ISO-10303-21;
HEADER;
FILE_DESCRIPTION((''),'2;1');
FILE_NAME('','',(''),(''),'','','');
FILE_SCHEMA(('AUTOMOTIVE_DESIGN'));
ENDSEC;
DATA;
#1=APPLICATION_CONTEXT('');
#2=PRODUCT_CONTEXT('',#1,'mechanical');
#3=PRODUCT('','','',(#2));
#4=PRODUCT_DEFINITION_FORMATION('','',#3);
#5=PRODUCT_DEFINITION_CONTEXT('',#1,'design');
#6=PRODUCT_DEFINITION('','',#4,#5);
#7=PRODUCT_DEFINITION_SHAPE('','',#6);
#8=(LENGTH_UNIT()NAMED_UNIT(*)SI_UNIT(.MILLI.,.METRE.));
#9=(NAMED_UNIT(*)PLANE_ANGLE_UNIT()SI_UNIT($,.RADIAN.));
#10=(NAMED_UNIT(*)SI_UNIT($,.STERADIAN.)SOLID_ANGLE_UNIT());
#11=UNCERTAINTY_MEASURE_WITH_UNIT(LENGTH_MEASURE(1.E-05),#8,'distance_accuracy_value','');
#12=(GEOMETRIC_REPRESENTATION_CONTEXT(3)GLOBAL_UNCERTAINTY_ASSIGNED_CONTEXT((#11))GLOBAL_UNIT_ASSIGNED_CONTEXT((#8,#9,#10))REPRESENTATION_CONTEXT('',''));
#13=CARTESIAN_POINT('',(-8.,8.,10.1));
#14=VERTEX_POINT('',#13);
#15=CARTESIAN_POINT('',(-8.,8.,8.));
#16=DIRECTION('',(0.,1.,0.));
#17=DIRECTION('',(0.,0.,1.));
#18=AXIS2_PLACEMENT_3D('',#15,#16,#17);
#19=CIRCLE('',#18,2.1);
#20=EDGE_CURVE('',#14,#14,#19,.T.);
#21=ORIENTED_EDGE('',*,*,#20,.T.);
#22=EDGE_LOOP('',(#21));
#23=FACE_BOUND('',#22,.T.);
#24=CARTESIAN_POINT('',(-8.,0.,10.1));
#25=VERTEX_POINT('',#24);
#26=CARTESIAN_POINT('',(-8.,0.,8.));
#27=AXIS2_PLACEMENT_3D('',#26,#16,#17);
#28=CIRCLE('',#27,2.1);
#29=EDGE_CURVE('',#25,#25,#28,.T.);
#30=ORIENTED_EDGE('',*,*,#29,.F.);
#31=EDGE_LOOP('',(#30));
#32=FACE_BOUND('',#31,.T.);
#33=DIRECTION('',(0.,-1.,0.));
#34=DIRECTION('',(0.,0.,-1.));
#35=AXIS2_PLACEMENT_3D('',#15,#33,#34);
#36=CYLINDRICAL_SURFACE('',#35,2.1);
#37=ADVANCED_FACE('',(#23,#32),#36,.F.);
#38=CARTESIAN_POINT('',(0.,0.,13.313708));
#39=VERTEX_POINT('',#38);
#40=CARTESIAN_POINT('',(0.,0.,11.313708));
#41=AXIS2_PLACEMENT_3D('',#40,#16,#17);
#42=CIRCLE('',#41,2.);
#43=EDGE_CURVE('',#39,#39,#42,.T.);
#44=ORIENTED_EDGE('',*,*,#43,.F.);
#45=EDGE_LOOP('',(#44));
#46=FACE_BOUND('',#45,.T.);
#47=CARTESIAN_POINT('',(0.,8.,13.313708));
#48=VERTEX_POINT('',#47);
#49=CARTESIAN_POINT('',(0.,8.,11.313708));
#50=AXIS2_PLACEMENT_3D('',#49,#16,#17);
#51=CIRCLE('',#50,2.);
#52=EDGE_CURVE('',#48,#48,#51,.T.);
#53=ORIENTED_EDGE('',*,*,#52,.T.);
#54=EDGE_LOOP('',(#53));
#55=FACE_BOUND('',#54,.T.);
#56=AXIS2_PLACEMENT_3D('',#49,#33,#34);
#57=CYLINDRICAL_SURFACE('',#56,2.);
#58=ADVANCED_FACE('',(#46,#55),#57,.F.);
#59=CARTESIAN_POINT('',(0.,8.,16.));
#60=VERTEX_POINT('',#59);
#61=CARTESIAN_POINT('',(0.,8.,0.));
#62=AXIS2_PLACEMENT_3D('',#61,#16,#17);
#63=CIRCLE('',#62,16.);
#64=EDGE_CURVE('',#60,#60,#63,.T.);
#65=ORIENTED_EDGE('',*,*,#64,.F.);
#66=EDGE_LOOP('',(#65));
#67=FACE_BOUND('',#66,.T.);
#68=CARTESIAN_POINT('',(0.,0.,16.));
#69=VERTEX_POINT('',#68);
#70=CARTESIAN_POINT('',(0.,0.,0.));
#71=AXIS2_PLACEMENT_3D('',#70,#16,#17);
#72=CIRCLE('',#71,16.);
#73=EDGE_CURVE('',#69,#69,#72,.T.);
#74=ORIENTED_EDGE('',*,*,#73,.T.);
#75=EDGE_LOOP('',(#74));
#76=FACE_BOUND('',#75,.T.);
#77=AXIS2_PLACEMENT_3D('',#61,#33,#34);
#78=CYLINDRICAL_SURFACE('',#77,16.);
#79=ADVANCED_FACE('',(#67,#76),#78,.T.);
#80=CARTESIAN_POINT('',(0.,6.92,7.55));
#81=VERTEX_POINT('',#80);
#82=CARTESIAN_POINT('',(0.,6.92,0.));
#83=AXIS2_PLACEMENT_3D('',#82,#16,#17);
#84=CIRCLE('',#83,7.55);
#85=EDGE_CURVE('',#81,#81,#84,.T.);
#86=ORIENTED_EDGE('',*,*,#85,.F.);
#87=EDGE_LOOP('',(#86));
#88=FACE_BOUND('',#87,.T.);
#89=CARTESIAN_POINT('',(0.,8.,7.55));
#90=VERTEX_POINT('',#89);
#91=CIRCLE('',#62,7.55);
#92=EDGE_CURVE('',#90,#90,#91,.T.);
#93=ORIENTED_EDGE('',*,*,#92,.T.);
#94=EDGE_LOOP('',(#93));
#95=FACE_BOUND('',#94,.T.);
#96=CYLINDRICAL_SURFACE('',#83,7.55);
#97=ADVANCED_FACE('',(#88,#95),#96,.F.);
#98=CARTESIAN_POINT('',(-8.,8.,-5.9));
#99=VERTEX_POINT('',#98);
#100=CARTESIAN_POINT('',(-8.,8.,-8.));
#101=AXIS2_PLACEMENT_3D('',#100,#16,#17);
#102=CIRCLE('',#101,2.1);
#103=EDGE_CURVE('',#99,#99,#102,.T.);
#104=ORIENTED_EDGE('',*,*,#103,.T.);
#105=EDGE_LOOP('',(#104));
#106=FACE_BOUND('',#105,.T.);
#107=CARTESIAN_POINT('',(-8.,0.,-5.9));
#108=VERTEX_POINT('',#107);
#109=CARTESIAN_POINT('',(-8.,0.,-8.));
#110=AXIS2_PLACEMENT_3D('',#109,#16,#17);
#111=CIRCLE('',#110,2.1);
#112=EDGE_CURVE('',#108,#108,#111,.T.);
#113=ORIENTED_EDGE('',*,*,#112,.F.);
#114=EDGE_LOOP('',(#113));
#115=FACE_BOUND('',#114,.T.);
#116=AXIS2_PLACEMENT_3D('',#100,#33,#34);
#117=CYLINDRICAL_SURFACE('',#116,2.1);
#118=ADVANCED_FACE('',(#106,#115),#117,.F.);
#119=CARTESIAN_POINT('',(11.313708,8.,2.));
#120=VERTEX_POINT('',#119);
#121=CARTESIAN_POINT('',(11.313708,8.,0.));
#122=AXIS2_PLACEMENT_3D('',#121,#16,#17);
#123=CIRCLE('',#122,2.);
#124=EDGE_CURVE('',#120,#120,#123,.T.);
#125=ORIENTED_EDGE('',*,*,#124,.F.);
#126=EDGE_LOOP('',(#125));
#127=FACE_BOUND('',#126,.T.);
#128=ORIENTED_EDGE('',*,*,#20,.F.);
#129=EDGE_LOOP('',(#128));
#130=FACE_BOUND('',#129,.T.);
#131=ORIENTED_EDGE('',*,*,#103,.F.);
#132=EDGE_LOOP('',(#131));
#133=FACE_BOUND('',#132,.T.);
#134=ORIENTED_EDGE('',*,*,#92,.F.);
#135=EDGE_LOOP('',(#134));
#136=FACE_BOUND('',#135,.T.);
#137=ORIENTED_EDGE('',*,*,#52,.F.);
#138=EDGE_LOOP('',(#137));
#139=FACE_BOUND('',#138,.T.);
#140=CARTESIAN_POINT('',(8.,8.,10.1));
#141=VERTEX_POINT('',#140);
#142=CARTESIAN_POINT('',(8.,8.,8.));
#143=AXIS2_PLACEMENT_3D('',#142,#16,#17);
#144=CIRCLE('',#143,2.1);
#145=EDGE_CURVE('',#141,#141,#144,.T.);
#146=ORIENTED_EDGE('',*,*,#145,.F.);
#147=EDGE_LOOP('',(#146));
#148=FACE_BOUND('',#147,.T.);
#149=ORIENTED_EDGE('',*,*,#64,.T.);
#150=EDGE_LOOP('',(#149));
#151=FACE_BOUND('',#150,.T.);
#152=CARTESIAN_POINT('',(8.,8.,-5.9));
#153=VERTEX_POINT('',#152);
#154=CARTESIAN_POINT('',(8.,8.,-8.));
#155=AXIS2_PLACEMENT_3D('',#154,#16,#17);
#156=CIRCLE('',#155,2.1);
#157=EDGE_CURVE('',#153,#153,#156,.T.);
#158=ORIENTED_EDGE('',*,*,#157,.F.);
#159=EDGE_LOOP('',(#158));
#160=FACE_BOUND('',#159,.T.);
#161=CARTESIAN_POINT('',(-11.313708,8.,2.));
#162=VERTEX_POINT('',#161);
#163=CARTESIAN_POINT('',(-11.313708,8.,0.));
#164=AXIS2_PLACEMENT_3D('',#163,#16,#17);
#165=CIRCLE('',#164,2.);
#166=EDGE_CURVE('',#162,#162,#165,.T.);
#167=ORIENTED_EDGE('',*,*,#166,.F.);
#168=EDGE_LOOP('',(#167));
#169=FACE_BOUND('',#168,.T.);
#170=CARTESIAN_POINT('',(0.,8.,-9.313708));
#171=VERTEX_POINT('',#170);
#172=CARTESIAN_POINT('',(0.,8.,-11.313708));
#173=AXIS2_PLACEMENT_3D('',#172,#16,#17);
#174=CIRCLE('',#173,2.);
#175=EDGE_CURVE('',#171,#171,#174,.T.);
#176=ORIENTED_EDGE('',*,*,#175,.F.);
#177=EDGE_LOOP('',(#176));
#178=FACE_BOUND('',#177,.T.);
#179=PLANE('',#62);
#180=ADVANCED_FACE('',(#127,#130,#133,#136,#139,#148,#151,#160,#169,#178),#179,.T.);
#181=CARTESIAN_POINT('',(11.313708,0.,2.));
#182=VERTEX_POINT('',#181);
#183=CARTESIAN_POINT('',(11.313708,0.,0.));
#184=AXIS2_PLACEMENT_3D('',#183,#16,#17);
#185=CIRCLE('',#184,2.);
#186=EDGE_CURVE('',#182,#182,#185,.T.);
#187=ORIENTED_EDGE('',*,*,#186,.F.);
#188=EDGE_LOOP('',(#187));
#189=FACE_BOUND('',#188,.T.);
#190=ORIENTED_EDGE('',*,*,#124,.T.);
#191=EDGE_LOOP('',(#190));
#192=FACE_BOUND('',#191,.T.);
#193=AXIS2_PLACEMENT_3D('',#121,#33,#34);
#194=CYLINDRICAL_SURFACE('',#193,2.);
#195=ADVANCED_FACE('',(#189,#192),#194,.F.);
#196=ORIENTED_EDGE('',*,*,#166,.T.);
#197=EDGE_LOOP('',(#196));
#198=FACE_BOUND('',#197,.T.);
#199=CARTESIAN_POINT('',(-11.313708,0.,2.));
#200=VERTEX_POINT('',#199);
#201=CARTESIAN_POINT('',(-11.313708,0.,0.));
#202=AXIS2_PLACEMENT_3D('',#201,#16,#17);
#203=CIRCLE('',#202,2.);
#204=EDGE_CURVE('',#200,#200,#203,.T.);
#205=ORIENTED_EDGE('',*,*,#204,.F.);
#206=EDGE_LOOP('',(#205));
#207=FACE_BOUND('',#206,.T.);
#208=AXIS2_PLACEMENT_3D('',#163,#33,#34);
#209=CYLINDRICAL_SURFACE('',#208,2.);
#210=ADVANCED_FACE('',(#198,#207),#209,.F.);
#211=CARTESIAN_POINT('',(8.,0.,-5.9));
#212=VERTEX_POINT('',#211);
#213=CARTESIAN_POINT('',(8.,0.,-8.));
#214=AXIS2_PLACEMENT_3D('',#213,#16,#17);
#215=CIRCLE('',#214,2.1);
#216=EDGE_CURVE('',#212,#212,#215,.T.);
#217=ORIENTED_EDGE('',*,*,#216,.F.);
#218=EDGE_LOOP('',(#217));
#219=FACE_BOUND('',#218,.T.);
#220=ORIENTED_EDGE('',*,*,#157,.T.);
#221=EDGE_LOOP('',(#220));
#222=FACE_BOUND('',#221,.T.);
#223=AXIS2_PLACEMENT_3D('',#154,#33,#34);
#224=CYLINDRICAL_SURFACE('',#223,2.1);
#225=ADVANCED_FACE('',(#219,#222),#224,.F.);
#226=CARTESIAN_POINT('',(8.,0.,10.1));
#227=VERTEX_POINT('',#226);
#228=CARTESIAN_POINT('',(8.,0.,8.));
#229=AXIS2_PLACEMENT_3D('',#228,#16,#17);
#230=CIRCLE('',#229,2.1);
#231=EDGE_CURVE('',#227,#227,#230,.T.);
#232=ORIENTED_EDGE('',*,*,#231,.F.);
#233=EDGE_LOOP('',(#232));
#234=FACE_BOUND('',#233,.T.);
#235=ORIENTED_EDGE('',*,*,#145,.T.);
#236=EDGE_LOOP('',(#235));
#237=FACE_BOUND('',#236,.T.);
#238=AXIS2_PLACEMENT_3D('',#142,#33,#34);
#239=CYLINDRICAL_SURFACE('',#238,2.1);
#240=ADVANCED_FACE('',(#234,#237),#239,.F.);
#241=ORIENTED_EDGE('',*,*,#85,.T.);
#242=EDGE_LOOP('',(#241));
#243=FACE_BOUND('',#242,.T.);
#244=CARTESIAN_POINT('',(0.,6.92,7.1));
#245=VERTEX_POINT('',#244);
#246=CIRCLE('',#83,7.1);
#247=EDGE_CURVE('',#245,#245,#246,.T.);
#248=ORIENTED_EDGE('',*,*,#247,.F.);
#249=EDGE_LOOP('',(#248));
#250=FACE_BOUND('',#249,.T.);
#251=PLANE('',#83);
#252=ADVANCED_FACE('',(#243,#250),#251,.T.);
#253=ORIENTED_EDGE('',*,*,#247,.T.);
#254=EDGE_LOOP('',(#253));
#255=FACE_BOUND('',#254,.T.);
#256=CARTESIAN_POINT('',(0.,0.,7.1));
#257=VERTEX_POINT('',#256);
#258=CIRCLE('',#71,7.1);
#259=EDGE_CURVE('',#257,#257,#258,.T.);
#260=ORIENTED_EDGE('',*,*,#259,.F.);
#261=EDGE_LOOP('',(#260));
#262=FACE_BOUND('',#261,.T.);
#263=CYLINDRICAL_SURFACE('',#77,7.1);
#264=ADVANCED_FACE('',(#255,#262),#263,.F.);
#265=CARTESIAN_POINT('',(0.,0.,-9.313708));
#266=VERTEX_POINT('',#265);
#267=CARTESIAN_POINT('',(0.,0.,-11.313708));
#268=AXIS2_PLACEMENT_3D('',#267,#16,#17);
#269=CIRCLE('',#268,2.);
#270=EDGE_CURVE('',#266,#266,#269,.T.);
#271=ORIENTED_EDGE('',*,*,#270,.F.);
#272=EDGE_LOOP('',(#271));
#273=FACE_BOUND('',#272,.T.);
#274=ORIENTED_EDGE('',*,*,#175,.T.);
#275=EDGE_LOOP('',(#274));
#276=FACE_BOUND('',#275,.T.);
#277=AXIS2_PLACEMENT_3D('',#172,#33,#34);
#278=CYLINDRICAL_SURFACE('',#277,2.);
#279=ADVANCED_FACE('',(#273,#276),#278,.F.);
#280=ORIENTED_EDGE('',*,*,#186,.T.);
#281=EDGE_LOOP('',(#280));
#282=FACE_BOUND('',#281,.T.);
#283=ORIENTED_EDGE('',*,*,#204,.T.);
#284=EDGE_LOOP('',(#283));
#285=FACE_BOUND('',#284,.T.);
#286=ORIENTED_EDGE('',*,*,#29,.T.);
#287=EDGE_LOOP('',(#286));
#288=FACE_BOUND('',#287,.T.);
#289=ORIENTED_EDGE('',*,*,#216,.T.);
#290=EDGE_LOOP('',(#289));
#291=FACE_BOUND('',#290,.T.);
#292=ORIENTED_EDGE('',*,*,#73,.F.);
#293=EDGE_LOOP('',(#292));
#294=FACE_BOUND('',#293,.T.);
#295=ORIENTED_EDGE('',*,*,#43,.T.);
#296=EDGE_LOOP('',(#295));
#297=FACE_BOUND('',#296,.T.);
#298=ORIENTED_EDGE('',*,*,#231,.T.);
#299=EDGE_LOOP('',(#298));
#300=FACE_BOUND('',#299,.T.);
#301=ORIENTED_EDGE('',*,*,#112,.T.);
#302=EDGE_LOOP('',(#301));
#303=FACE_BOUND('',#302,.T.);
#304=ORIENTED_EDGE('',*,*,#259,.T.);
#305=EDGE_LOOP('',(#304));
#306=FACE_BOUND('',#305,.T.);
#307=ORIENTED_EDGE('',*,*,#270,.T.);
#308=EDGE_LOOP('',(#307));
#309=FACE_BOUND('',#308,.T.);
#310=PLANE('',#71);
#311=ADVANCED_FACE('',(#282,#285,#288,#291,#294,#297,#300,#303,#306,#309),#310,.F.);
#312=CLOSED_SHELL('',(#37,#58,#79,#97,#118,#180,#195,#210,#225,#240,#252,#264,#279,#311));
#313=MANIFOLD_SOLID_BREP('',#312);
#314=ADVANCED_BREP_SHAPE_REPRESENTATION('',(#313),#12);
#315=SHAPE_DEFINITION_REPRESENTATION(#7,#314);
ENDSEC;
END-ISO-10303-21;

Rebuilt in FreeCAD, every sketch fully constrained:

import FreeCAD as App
import Part
import Sketcher
from FreeCAD import Vector

doc = App.newDocument("Part")
body = doc.addObject("PartDesign::Body", "Body")

sketch1 = doc.addObject("Sketcher::SketchObject", "Sketch")
body.addObject(sketch1)
sketch1.AttachmentSupport = (doc.XZ_Plane, [""])
sketch1.MapMode = "FlatFace"
sketch1.addGeometry(Part.Circle(Vector(0, 0, 0), Vector(0, 0, 1), 16), False)
sketch1.addGeometry(Part.Circle(Vector(-8, 8, 0), Vector(0, 0, 1), 2.1), False)
sketch1.addGeometry(Part.Circle(Vector(0, 11.3, 0), Vector(0, 0, 1), 2), False)
sketch1.addGeometry(Part.Circle(Vector(8, 8, 0), Vector(0, 0, 1), 2.1), False)
sketch1.addGeometry(Part.Circle(Vector(-11.3, 0, 0), Vector(0, 0, 1), 2), False)
sketch1.addGeometry(Part.Circle(Vector(-8, -8, 0), Vector(0, 0, 1), 2.1), False)
sketch1.addGeometry(Part.Circle(Vector(0, 0, 0), Vector(0, 0, 1), 7.1), False)
sketch1.addGeometry(Part.Circle(Vector(11.3, 0, 0), Vector(0, 0, 1), 2), False)
sketch1.addGeometry(Part.Circle(Vector(0, -11.3, 0), Vector(0, 0, 1), 2), False)
sketch1.addGeometry(Part.Circle(Vector(8, -8, 0), Vector(0, 0, 1), 2.1), False)
sketch1.addConstraint(Sketcher.Constraint("Coincident", 0, 3, -1, 1))
sketch1.addConstraint(Sketcher.Constraint("Coincident", 6, 3, -1, 1))
sketch1.addConstraint(Sketcher.Constraint("Equal", 1, 3))
sketch1.addConstraint(Sketcher.Constraint("Equal", 2, 4))
sketch1.addConstraint(Sketcher.Constraint("Equal", 3, 5))
sketch1.addConstraint(Sketcher.Constraint("Equal", 4, 7))
sketch1.addConstraint(Sketcher.Constraint("Equal", 7, 8))
sketch1.addConstraint(Sketcher.Constraint("Equal", 5, 9))
sketch1.addConstraint(Sketcher.Constraint("Symmetric", 3, 3, 5, 3, -1, 1))
sketch1.addConstraint(Sketcher.Constraint("Symmetric", 4, 3, 7, 3, -1, 1))
sketch1.addConstraint(Sketcher.Constraint("Symmetric", 2, 3, 8, 3, -1, 1))
sketch1.addConstraint(Sketcher.Constraint("Symmetric", 1, 3, 9, 3, -1, 1))
sketch1.addConstraint(Sketcher.Constraint("Symmetric", 1, 3, 3, 3, -2))
sketch1.addConstraint(Sketcher.Constraint("PointOnObject", 2, 3, -2))
sketch1.addConstraint(Sketcher.Constraint("PointOnObject", 4, 3, -1))
sketch1.addConstraint(Sketcher.Constraint("Diameter", 0, 32.0))
sketch1.addConstraint(Sketcher.Constraint("Diameter", 2, 4.0))
sketch1.addConstraint(Sketcher.Constraint("Diameter", 1, 4.2))
sketch1.addConstraint(Sketcher.Constraint("Diameter", 6, 14.2))
sketch1.addConstraint(Sketcher.Constraint("DistanceX", 1, 3, -1, 1, 8.0))
sketch1.addConstraint(Sketcher.Constraint("DistanceY", -1, 1, 1, 3, 8.0))
sketch1.addConstraint(Sketcher.Constraint("DistanceY", -1, 1, 2, 3, 11.313708))
sketch1.addConstraint(Sketcher.Constraint("DistanceX", 4, 3, -1, 1, 11.313708))
pad1 = doc.addObject("PartDesign::Pad", "Pad")
body.addObject(pad1)
pad1.Profile = sketch1
pad1.Length = 8
pad1.Reversed = True

sketch2 = doc.addObject("Sketcher::SketchObject", "Sketch001")
body.addObject(sketch2)
sketch2.AttachmentSupport = (doc.XZ_Plane, [""])
sketch2.MapMode = "FlatFace"
sketch2.AttachmentOffset = App.Placement(Vector(0, 0, -8), App.Rotation())
sketch2.addGeometry(Part.Circle(Vector(0, 0, 0), Vector(0, 0, 1), 8), False)
sketch2.addConstraint(Sketcher.Constraint("Coincident", 0, 3, -1, 1))
sketch2.addConstraint(Sketcher.Constraint("Diameter", 0, 15.1))
pocket1 = doc.addObject("PartDesign::Pocket", "Pocket")
body.addObject(pocket1)
pocket1.Profile = sketch2
pocket1.Length = 1.08
pocket1.Reversed = True

doc.recompute()
